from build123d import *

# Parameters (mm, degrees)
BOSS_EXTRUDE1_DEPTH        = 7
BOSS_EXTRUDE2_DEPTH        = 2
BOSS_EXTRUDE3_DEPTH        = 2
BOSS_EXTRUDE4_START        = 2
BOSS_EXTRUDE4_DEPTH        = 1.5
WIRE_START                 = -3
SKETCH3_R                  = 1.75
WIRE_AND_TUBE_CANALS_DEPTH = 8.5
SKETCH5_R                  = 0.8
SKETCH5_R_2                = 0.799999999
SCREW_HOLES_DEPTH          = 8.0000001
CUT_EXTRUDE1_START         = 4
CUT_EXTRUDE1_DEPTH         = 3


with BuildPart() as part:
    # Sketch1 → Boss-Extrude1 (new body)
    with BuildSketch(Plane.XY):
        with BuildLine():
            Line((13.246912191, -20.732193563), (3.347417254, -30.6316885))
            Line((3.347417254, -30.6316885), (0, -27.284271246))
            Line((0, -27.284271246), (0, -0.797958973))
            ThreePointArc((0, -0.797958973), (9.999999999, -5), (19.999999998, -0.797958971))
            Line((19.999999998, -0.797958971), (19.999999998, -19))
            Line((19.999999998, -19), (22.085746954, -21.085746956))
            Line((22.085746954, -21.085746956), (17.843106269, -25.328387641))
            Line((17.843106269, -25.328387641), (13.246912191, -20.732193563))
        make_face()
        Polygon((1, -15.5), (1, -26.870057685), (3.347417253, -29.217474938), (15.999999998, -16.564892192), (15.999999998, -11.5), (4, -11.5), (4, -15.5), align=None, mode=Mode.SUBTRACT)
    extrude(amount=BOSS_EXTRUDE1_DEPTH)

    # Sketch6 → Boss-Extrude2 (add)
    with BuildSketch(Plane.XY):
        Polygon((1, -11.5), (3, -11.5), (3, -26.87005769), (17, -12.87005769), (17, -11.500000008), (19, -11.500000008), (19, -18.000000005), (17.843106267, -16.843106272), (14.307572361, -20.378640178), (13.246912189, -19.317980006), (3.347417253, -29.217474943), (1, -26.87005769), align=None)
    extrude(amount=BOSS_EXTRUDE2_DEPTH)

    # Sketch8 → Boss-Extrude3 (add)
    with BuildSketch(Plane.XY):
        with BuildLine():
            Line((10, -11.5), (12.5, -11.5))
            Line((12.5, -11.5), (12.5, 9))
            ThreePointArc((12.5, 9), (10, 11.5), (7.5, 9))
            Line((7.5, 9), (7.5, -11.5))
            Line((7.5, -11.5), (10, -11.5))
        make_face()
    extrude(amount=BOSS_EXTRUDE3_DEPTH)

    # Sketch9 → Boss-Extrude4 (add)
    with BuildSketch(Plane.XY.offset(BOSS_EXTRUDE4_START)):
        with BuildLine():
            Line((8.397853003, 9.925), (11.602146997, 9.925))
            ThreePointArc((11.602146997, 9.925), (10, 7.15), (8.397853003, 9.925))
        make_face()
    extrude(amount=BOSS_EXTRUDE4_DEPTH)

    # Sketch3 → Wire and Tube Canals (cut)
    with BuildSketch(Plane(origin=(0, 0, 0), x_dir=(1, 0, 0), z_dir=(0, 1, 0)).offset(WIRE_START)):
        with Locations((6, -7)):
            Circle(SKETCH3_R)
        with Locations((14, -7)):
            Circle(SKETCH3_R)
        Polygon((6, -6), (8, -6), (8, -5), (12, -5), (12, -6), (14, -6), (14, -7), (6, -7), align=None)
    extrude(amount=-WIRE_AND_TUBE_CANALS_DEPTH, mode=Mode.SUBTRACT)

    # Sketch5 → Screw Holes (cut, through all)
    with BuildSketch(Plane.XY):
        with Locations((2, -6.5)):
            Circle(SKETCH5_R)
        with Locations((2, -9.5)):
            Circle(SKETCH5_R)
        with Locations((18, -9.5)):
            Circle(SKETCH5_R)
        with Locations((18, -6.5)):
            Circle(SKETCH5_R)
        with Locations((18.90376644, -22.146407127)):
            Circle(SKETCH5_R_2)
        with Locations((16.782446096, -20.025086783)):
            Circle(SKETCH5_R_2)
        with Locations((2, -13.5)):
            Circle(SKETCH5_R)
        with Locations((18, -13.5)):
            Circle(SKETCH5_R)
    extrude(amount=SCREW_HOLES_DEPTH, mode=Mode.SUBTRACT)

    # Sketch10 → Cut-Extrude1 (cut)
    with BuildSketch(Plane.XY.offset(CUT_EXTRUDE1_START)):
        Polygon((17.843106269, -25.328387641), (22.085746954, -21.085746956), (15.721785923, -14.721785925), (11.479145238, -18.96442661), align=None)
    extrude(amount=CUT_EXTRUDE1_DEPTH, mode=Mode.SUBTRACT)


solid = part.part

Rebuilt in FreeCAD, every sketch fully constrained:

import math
import FreeCAD as App
import Part
import Sketcher
from FreeCAD import Vector
Q = App.Units.Quantity


def add_polygon(sketch, points):
    """Adds a closed chain of lines whose ends are joined by coincident constraints."""
    first, n = sketch.GeometryCount, len(points)
    for a, b in zip(points, points[1:] + points[:1]):
        sketch.addGeometry(Part.LineSegment(App.Vector(*a, 0), App.Vector(*b, 0)), False)
    for i in range(n):
        sketch.addConstraint(Sketcher.Constraint("Coincident", first + i, 2, first + (i + 1) % n, 1))

doc = App.newDocument("Part")
body = doc.addObject("PartDesign::Body", "Body")

sketch1 = doc.addObject("Sketcher::SketchObject", "Sketch")
body.addObject(sketch1)
sketch1.AttachmentSupport = (doc.XY_Plane, [""])
sketch1.MapMode = "FlatFace"
sketch1.addGeometry(Part.LineSegment(Vector(3.347417, -30.631688, 0), Vector(13.246912, -20.732194, 0)), False)
sketch1.addGeometry(Part.LineSegment(Vector(13.246912, -20.732194, 0), Vector(17.843106, -25.328388, 0)), False)
sketch1.addGeometry(Part.LineSegment(Vector(17.843106, -25.328388, 0), Vector(22.085747, -21.085747, 0)), False)
sketch1.addGeometry(Part.LineSegment(Vector(22.085747, -21.085747, 0), Vector(20, -19, 0)), False)
sketch1.addGeometry(Part.LineSegment(Vector(20, -19, 0), Vector(20, -0.797959, 0)), False)
sketch1.addGeometry(Part.ArcOfCircle(Part.Circle(Vector(10, 9, 0), Vector(0, 0, 1), 14), math.radians(-135.584691), math.radians(-44.415309)), False)
sketch1.addGeometry(Part.LineSegment(Vector(0, -0.797959, 0), Vector(0, -27.284271, 0)), False)
sketch1.addGeometry(Part.LineSegment(Vector(0, -27.284271, 0), Vector(3.347417, -30.631688, 0)), False)
add_polygon(sketch1, [(1, -15.5), (4, -15.5), (4, -11.5), (16, -11.5), (16, -16.564892), (3.347417, -29.217475), (1, -26.870058)])
sketch1.addConstraint(Sketcher.Constraint("Coincident", 0, 2, 1, 1))
sketch1.addConstraint(Sketcher.Constraint("Coincident", 1, 2, 2, 1))
sketch1.addConstraint(Sketcher.Constraint("Coincident", 2, 2, 3, 1))
sketch1.addConstraint(Sketcher.Constraint("Coincident", 3, 2, 4, 1))
sketch1.addConstraint(Sketcher.Constraint("Coincident", 4, 2, 5, 2))
sketch1.addConstraint(Sketcher.Constraint("Coincident", 5, 1, 6, 1))
sketch1.addConstraint(Sketcher.Constraint("Coincident", 6, 2, 7, 1))
sketch1.addConstraint(Sketcher.Constraint("Coincident", 7, 2, 0, 1))
sketch1.addConstraint(Sketcher.Constraint("Vertical", 4))
sketch1.addConstraint(Sketcher.Constraint("Vertical", 6))
sketch1.addConstraint(Sketcher.Constraint("Horizontal", 8))
sketch1.addConstraint(Sketcher.Constraint("Vertical", 9))
sketch1.addConstraint(Sketcher.Constraint("Horizontal", 10))
sketch1.addConstraint(Sketcher.Constraint("Vertical", 11))
sketch1.addConstraint(Sketcher.Constraint("Vertical", 14))
sketch1.addConstraint(Sketcher.Constraint("PointOnObject", 5, 1, -2))
sketch1.addConstraint(Sketcher.Constraint("Perpendicular", 0, 1))
sketch1.addConstraint(Sketcher.Constraint("Perpendicular", 1, 2))
sketch1.addConstraint(Sketcher.Constraint("Perpendicular", 2, 3))
sketch1.addConstraint(Sketcher.Constraint("Parallel", 3, 7))
sketch1.addConstraint(Sketcher.Constraint("Perpendicular", 7, 12))
sketch1.addConstraint(Sketcher.Constraint("Perpendicular", 12, 13))
sketch1.addConstraint(Sketcher.Constraint("Horizontal", 4, 2, 5, 1))
sketch1.addConstraint(Sketcher.Constraint("Vertical", 7, 2, 12, 2))
sketch1.addConstraint(Sketcher.Constraint("Radius", 5, 14.0))
sketch1.addConstraint(Sketcher.Constraint("DistanceX", 8, 1, 8, 2, 3.0))
sketch1.addConstraint(Sketcher.Constraint("DistanceX", 10, 1, 10, 2, 12.0))
sketch1.addConstraint(Sketcher.Constraint("DistanceY", 9, 1, 9, 2, 4.0))
sketch1.addConstraint(Sketcher.Constraint("Angle", 0, Q("45 deg")))
sketch1.addConstraint(Sketcher.Constraint("Distance", 0, 14.0))
sketch1.addConstraint(Sketcher.Constraint("Distance", 2, 6.0))
sketch1.addConstraint(Sketcher.Constraint("DistanceX", -1, 1, 5, 3, 10.0))
sketch1.addConstraint(Sketcher.Constraint("DistanceY", -1, 1, 5, 3, 9.0))
sketch1.addConstraint(Sketcher.Constraint("DistanceY", 3, 2, -1, 1, 19.0))
sketch1.addConstraint(Sketcher.Constraint("DistanceX", -1, 1, 8, 2, 4.0))
sketch1.addConstraint(Sketcher.Constraint("Distance", 1, 6.5))
sketch1.addConstraint(Sketcher.Constraint("DistanceY", 8, 2, -1, 1, 15.5))
sketch1.addConstraint(Sketcher.Constraint("DistanceY", 0, 2, 11, 2, 4.167301))
sketch1.addConstraint(Sketcher.Constraint("Distance", 3, 2.949692))
pad1 = doc.addObject("PartDesign::Pad", "Pad")
body.addObject(pad1)
pad1.Profile = sketch1
pad1.Length = 7

sketch2 = doc.addObject("Sketcher::SketchObject", "Sketch001")
body.addObject(sketch2)
sketch2.AttachmentSupport = (doc.XY_Plane, [""])
sketch2.MapMode = "FlatFace"
add_polygon(sketch2, [(3, -11.5), (1, -11.5), (1, -26.870058), (3.347417, -29.217475), (13.246912, -19.31798), (14.307572, -20.37864), (17.843106, -16.843106), (19, -18), (19, -11.5), (17, -11.5), (17, -12.870058), (3, -26.870058)])
sketch2.addConstraint(Sketcher.Constraint("Horizontal", 0))
sketch2.addConstraint(Sketcher.Constraint("Vertical", 1))
sketch2.addConstraint(Sketcher.Constraint("Vertical", 7))
sketch2.addConstraint(Sketcher.Constraint("Horizontal", 8))
sketch2.addConstraint(Sketcher.Constraint("Vertical", 9))
sketch2.addConstraint(Sketcher.Constraint("Vertical", 11))
sketch2.addConstraint(Sketcher.Constraint("Perpendicular", 2, 3))
sketch2.addConstraint(Sketcher.Constraint("Perpendicular", 3, 4))
sketch2.addConstraint(Sketcher.Constraint("Perpendicular", 4, 5))
sketch2.addConstraint(Sketcher.Constraint("Perpendicular", 5, 6))
sketch2.addConstraint(Sketcher.Constraint("Perpendicular", 6, 10))
sketch2.addConstraint(Sketcher.Constraint("Horizontal", 0, 2, 7, 2))
sketch2.addConstraint(Sketcher.Constraint("Horizontal", 1, 2, 10, 2))
sketch2.addConstraint(Sketcher.Constraint("Equal", 0, 8))
sketch2.addConstraint(Sketcher.Constraint("DistanceX", 0, 2, 0, 1, 2.0))
sketch2.addConstraint(Sketcher.Constraint("Angle", 2, Q("-45 deg")))
sketch2.addConstraint(Sketcher.Constraint("Distance", 3, 14.0))
sketch2.addConstraint(Sketcher.Constraint("Distance", 5, 5.0))
sketch2.addConstraint(Sketcher.Constraint("DistanceY", 7, 1, 7, 2, 6.5))
sketch2.addConstraint(Sketcher.Constraint("DistanceX", -1, 1, 0, 2, 1.0))
sketch2.addConstraint(Sketcher.Constraint("DistanceX", -1, 1, 6, 2, 19.0))
sketch2.addConstraint(Sketcher.Constraint("DistanceY", 6, 2, -1, 1, 18.0))
sketch2.addConstraint(Sketcher.Constraint("Distance", 4, 1.5))
sketch2.addConstraint(Sketcher.Constraint("Distance", 2, 3.319749))
pad2 = doc.addObject("PartDesign::Pad", "Pad001")
body.addObject(pad2)
pad2.Profile = sketch2
pad2.Length = 2

sketch3 = doc.addObject("Sketcher::SketchObject", "Sketch002")
body.addObject(sketch3)
sketch3.AttachmentSupport = (doc.XY_Plane, [""])
sketch3.MapMode = "FlatFace"
sketch3.addGeometry(Part.LineSegment(Vector(12.5, -11.5, 0), Vector(12.5, 9, 0)), False)
sketch3.addGeometry(Part.ArcOfCircle(Part.Circle(Vector(10, 9, 0), Vector(0, 0, 1), 2.5), math.radians(0), math.radians(180)), False)
sketch3.addGeometry(Part.LineSegment(Vector(7.5, 9, 0), Vector(7.5, -11.5, 0)), False)
sketch3.addGeometry(Part.LineSegment(Vector(7.5, -11.5, 0), Vector(12.5, -11.5, 0)), False)
sketch3.addConstraint(Sketcher.Constraint("Tangent", 0, 2, 1, 1))
sketch3.addConstraint(Sketcher.Constraint("Tangent", 1, 2, 2, 1))
sketch3.addConstraint(Sketcher.Constraint("Coincident", 2, 2, 3, 1))
sketch3.addConstraint(Sketcher.Constraint("Coincident", 3, 2, 0, 1))
sketch3.addConstraint(Sketcher.Constraint("Vertical", 0))
sketch3.addConstraint(Sketcher.Constraint("Vertical", 2))
sketch3.addConstraint(Sketcher.Constraint("Horizontal", 3))
sketch3.addConstraint(Sketcher.Constraint("Radius", 1, 2.5))
sketch3.addConstraint(Sketcher.Constraint("DistanceY", 0, 1, 0, 2, 20.5))
sketch3.addConstraint(Sketcher.Constraint("DistanceX", -1, 1, 1, 3, 10.0))
sketch3.addConstraint(Sketcher.Constraint("DistanceY", -1, 1, 1, 3, 9.0))
pad3 = doc.addObject("PartDesign::Pad", "Pad002")
body.addObject(pad3)
pad3.Profile = sketch3
pad3.Length = 2

sketch4 = doc.addObject("Sketcher::SketchObject", "Sketch003")
body.addObject(sketch4)
sketch4.AttachmentSupport = (doc.XY_Plane, [""])
sketch4.MapMode = "FlatFace"
sketch4.AttachmentOffset = App.Placement(Vector(0, 0, 2), App.Rotation())
sketch4.addGeometry(Part.LineSegment(Vector(11.602147, 9.925, 0), Vector(8.397853, 9.925, 0)), False)
sketch4.addGeometry(Part.ArcOfCircle(Part.Circle(Vector(10, 9, 0), Vector(0, 0, 1), 1.85), math.radians(150), math.radians(390)), False)
sketch4.addConstraint(Sketcher.Constraint("Coincident", 0, 1, 1, 2))
sketch4.addConstraint(Sketcher.Constraint("Coincident", 1, 1, 0, 2))
sketch4.addConstraint(Sketcher.Constraint("Horizontal", 0))
sketch4.addConstraint(Sketcher.Constraint("Radius", 1, 1.85))
sketch4.addConstraint(Sketcher.Constraint("DistanceX", -1, 1, 1, 3, 10.0))
sketch4.addConstraint(Sketcher.Constraint("DistanceY", -1, 1, 1, 3, 9.0))
sketch4.addConstraint(Sketcher.Constraint("DistanceY", -1, 1, 0, 1, 9.925))
pad4 = doc.addObject("PartDesign::Pad", "Pad003")
body.addObject(pad4)
pad4.Profile = sketch4
pad4.Length = 1.5

sketch5 = doc.addObject("Sketcher::SketchObject", "Sketch004")
body.addObject(sketch5)
sketch5.AttachmentSupport = (doc.XZ_Plane, [""])
sketch5.MapMode = "FlatFace"
sketch5.AttachmentOffset = App.Placement(Vector(0, 0, 3), App.Rotation())
sketch5.addGeometry(Part.ArcOfCircle(Part.Circle(Vector(6, 7, 0), Vector(0, 0, 1), 1.75), math.radians(0), math.radians(325.150095)), False)
sketch5.addGeometry(Part.LineSegment(Vector(7.75, 7, 0), Vector(12.25, 7, 0)), False)
sketch5.addGeometry(Part.ArcOfCircle(Part.Circle(Vector(14, 7, 0), Vector(0, 0, 1), 1.75), math.radians(-145.150095), math.radians(180)), False)
sketch5.addGeometry(Part.LineSegment(Vector(12.563859, 6, 0), Vector(12, 6, 0)), False)
sketch5.addGeometry(Part.LineSegment(Vector(12, 6, 0), Vector(12, 5, 0)), False)
sketch5.addGeometry(Part.LineSegment(Vector(12, 5, 0), Vector(8, 5, 0)), False)
sketch5.addGeometry(Part.LineSegment(Vector(8, 5, 0), Vector(8, 6, 0)), False)
sketch5.addGeometry(Part.LineSegment(Vector(8, 6, 0), Vector(7.436141, 6, 0)), False)
sketch5.addConstraint(Sketcher.Constraint("Coincident", 0, 1, 1, 1))
sketch5.addConstraint(Sketcher.Constraint("Coincident", 1, 2, 2, 2))
sketch5.addConstraint(Sketcher.Constraint("Coincident", 2, 1, 3, 1))
sketch5.addConstraint(Sketcher.Constraint("Coincident", 3, 2, 4, 1))
sketch5.addConstraint(Sketcher.Constraint("Coincident", 4, 2, 5, 1))
sketch5.addConstraint(Sketcher.Constraint("Coincident", 5, 2, 6, 1))
sketch5.addConstraint(Sketcher.Constraint("Coincident", 6, 2, 7, 1))
sketch5.addConstraint(Sketcher.Constraint("Coincident", 7, 2, 0, 2))
sketch5.addConstraint(Sketcher.Constraint("Horizontal", 1))
sketch5.addConstraint(Sketcher.Constraint("Horizontal", 3))
sketch5.addConstraint(Sketcher.Constraint("Vertical", 4))
sketch5.addConstraint(Sketcher.Constraint("Horizontal", 5))
sketch5.addConstraint(Sketcher.Constraint("Vertical", 6))
sketch5.addConstraint(Sketcher.Constraint("Horizontal", 7))
sketch5.addConstraint(Sketcher.Constraint("Equal", 0, 2))
sketch5.addConstraint(Sketcher.Constraint("Horizontal", 0, 3, 2, 3))
sketch5.addConstraint(Sketcher.Constraint("Horizontal", 2, 3, 0, 1))
sketch5.addConstraint(Sketcher.Constraint("Horizontal", 3, 2, 6, 2))
sketch5.addConstraint(Sketcher.Constraint("Equal", 3, 7))
sketch5.addConstraint(Sketcher.Constraint("DistanceX", 5, 2, 5, 1, 4.0))
sketch5.addConstraint(Sketcher.Constraint("DistanceY", 4, 2, 4, 1, 1.0))
sketch5.addConstraint(Sketcher.Constraint("Radius", 0, 1.75))
sketch5.addConstraint(Sketcher.Constraint("DistanceX", 1, 1, 1, 2, 4.5))
sketch5.addConstraint(Sketcher.Constraint("DistanceX", -1, 1, 0, 3, 6.0))
sketch5.addConstraint(Sketcher.Constraint("DistanceY", -1, 1, 0, 3, 7.0))
sketch5.addConstraint(Sketcher.Constraint("DistanceY", -1, 1, 2, 1, 6.0))
pocket1 = doc.addObject("PartDesign::Pocket", "Pocket")
body.addObject(pocket1)
pocket1.Profile = sketch5
pocket1.Length = 8.5
pocket1.Reversed = True

sketch6 = doc.addObject("Sketcher::SketchObject", "Sketch005")
body.addObject(sketch6)
sketch6.AttachmentSupport = (doc.XY_Plane, [""])
sketch6.MapMode = "FlatFace"
sketch6.addGeometry(Part.Circle(Vector(2, -6.5, 0), Vector(0, 0, 1), 0.8), False)
sketch6.addGeometry(Part.Circle(Vector(2, -9.5, 0), Vector(0, 0, 1), 0.8), False)
sketch6.addGeometry(Part.Circle(Vector(18, -9.5, 0), Vector(0, 0, 1), 0.8), False)
sketch6.addGeometry(Part.Circle(Vector(18, -6.5, 0), Vector(0, 0, 1), 0.8), False)
sketch6.addGeometry(Part.Circle(Vector(18.903766, -22.146407, 0), Vector(0, 0, 1), 0.8), False)
sketch6.addGeometry(Part.Circle(Vector(16.782446, -20.025087, 0), Vector(0, 0, 1), 0.8), False)
sketch6.addGeometry(Part.Circle(Vector(2, -13.5, 0), Vector(0, 0, 1), 0.8), False)
sketch6.addGeometry(Part.Circle(Vector(18, -13.5, 0), Vector(0, 0, 1), 0.8), False)
sketch6.addConstraint(Sketcher.Constraint("Equal", 0, 1))
sketch6.addConstraint(Sketcher.Constraint("Equal", 1, 2))
sketch6.addConstraint(Sketcher.Constraint("Equal", 2, 3))
sketch6.addConstraint(Sketcher.Constraint("Equal", 3, 4))
sketch6.addConstraint(Sketcher.Constraint("Equal", 4, 5))
sketch6.addConstraint(Sketcher.Constraint("Equal", 5, 6))
sketch6.addConstraint(Sketcher.Constraint("Equal", 6, 7))
sketch6.addConstraint(Sketcher.Constraint("Horizontal", 1, 3, 2, 3))
sketch6.addConstraint(Sketcher.Constraint("Horizontal", 0, 3, 3, 3))
sketch6.addConstraint(Sketcher.Constraint("Horizontal", 6, 3, 7, 3))
sketch6.addConstraint(Sketcher.Constraint("Vertical", 0, 3, 1, 3))
sketch6.addConstraint(Sketcher.Constraint("Vertical", 2, 3, 3, 3))
sketch6.addConstraint(Sketcher.Constraint("Vertical", 1, 3, 6, 3))
sketch6.addConstraint(Sketcher.Constraint("Vertical", 3, 3, 7, 3))
sketch6.addConstraint(Sketcher.Constraint("Diameter", 0, 1.6))
sketch6.addConstraint(Sketcher.Constraint("DistanceX", -1, 1, 0, 3, 2.0))
sketch6.addConstraint(Sketcher.Constraint("DistanceX", -1, 1, 2, 3, 18.0))
sketch6.addConstraint(Sketcher.Constraint("DistanceY", 1, 3, 0, 3, 3.0))
sketch6.addConstraint(Sketcher.Constraint("DistanceY", 6, 3, 1, 3, 4.0))
sketch6.addConstraint(Sketcher.Constraint("DistanceY", 0, 3, -1, 1, 6.5))
sketch6.addConstraint(Sketcher.Constraint("DistanceX", 5, 3, 4, 3, 2.12132))
sketch6.addConstraint(Sketcher.Constraint("DistanceY", 4, 3, 5, 3, 2.12132))
sketch6.addConstraint(Sketcher.Constraint("DistanceX", -1, 1, 4, 3, 18.903766))
sketch6.addConstraint(Sketcher.Constraint("DistanceY", 4, 3, -1, 1, 22.146407))
pocket2 = doc.addObject("PartDesign::Pocket", "Pocket001")
body.addObject(pocket2)
pocket2.Profile = sketch6
pocket2.Type = "ThroughAll"
pocket2.Reversed = True

sketch7 = doc.addObject("Sketcher::SketchObject", "Sketch006")
body.addObject(sketch7)
sketch7.AttachmentSupport = (doc.XY_Plane, [""])
sketch7.MapMode = "FlatFace"
sketch7.AttachmentOffset = App.Placement(Vector(0, 0, 4), App.Rotation())
add_polygon(sketch7, [(17.843106, -25.328388), (22.085747, -21.085747), (15.721786, -14.721786), (11.479145, -18.964427)])
sketch7.addConstraint(Sketcher.Constraint("Perpendicular", 0, 1))
sketch7.addConstraint(Sketcher.Constraint("Perpendicular", 1, 2))
sketch7.addConstraint(Sketcher.Constraint("Perpendicular", 2, 3))
sketch7.addConstraint(Sketcher.Constraint("Angle", 0, Q("45 deg")))
sketch7.addConstraint(Sketcher.Constraint("Distance", 0, 6.0))
sketch7.addConstraint(Sketcher.Constraint("Distance", 1, 9.0))
sketch7.addConstraint(Sketcher.Constraint("DistanceX", -1, 1, 0, 2, 22.085747))
sketch7.addConstraint(Sketcher.Constraint("DistanceY", 0, 2, -1, 1, 21.085747))
pocket3 = doc.addObject("PartDesign::Pocket", "Pocket002")
body.addObject(pocket3)
pocket3.Profile = sketch7
pocket3.Length = 3
pocket3.Reversed = True

doc.recompute()
